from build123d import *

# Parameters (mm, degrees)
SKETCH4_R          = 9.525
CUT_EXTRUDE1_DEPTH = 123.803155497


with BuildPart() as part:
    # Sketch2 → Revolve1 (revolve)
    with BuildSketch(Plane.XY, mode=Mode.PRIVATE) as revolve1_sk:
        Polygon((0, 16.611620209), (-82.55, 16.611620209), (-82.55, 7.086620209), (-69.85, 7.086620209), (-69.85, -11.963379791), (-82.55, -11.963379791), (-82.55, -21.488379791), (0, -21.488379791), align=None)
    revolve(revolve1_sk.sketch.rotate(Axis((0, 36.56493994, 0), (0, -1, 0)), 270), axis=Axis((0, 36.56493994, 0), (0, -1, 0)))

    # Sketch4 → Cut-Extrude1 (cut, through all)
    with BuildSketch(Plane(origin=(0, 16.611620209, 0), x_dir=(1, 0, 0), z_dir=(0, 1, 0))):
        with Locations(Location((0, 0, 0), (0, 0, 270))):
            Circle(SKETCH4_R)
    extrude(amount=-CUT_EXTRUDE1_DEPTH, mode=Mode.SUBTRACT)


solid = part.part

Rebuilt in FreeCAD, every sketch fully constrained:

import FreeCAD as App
import Part
import Sketcher
Q = App.Units.Quantity


def add_polygon(sketch, points):
    """Adds a closed chain of lines whose ends are joined by coincident constraints."""
    first, n = sketch.GeometryCount, len(points)
    for a, b in zip(points, points[1:] + points[:1]):
        sketch.addGeometry(Part.LineSegment(App.Vector(*a, 0), App.Vector(*b, 0)), False)
    for i in range(n):
        sketch.addConstraint(Sketcher.Constraint("Coincident", first + i, 2, first + (i + 1) % n, 1))

doc = App.newDocument("Part")
body = doc.addObject("PartDesign::Body", "Body")

sketch1 = body.newObject("Sketcher::SketchObject", "Sketch")
sketch1.AttachmentSupport = (doc.getObject("XY_Plane"), [""])
sketch1.MapMode = "FlatFace"
add_polygon(sketch1, [(0, 17), (-83, 17), (-83, 7), (-70, 7), (-70, -12), (-83, -12), (-83, -21), (0, -21)])
sketch1.addConstraint([
    Sketcher.Constraint("Horizontal", 0),
    Sketcher.Constraint("Vertical", 1),
    Sketcher.Constraint("Horizontal", 2),
    Sketcher.Constraint("Vertical", 3),
    Sketcher.Constraint("Horizontal", 4),
    Sketcher.Constraint("Vertical", 5),
    Sketcher.Constraint("Horizontal", 6),
    Sketcher.Constraint("Vertical", 7),
    Sketcher.Constraint("PointOnObject", 6, 2, -2),
    Sketcher.Constraint("Vertical", 1, 2, 4, 2),
    Sketcher.Constraint("Equal", 1, 5),
    Sketcher.Constraint("DistanceX", 2, 1, 2, 2, Q("0.5 in")),
    Sketcher.Constraint("DistanceY", 7, 1, 7, 2, Q("1.5 in")),
    Sketcher.Constraint("DistanceX", 0, 2, 0, 1, Q("3.25 in")),
    Sketcher.Constraint("DistanceY", 3, 2, 3, 1, Q("0.75 in")),
    Sketcher.Constraint("DistanceY", -1, 1, 0, 2, 16.61162),
])
revolution = body.newObject("PartDesign::Revolution", "Revolution")
revolution.Profile = sketch1
revolution.ReferenceAxis = (sketch1, ["V_Axis"])
revolution.Angle = 360

sketch2 = body.newObject("Sketcher::SketchObject", "Sketch001")
sketch2.AttachmentSupport = (doc.getObject("XZ_Plane"), [""])
sketch2.MapMode = "FlatFace"
sketch2.AttachmentOffset = App.Placement(App.Vector(0, 0, -16.61162), App.Rotation())
sketch2.addGeometry(Part.Circle(App.Vector(0, 0, 0), App.Vector(0, 0, 1), 10), False)
sketch2.addConstraint([
    Sketcher.Constraint("Coincident", 0, 3, -1, 1),
    Sketcher.Constraint("Diameter", 0, Q("0.75 in")),
])
pocket1 = body.newObject("PartDesign::Pocket", "Pocket")
pocket1.Profile = sketch2
pocket1.Type = "ThroughAll"
pocket1.Reversed = True

doc.recompute()
